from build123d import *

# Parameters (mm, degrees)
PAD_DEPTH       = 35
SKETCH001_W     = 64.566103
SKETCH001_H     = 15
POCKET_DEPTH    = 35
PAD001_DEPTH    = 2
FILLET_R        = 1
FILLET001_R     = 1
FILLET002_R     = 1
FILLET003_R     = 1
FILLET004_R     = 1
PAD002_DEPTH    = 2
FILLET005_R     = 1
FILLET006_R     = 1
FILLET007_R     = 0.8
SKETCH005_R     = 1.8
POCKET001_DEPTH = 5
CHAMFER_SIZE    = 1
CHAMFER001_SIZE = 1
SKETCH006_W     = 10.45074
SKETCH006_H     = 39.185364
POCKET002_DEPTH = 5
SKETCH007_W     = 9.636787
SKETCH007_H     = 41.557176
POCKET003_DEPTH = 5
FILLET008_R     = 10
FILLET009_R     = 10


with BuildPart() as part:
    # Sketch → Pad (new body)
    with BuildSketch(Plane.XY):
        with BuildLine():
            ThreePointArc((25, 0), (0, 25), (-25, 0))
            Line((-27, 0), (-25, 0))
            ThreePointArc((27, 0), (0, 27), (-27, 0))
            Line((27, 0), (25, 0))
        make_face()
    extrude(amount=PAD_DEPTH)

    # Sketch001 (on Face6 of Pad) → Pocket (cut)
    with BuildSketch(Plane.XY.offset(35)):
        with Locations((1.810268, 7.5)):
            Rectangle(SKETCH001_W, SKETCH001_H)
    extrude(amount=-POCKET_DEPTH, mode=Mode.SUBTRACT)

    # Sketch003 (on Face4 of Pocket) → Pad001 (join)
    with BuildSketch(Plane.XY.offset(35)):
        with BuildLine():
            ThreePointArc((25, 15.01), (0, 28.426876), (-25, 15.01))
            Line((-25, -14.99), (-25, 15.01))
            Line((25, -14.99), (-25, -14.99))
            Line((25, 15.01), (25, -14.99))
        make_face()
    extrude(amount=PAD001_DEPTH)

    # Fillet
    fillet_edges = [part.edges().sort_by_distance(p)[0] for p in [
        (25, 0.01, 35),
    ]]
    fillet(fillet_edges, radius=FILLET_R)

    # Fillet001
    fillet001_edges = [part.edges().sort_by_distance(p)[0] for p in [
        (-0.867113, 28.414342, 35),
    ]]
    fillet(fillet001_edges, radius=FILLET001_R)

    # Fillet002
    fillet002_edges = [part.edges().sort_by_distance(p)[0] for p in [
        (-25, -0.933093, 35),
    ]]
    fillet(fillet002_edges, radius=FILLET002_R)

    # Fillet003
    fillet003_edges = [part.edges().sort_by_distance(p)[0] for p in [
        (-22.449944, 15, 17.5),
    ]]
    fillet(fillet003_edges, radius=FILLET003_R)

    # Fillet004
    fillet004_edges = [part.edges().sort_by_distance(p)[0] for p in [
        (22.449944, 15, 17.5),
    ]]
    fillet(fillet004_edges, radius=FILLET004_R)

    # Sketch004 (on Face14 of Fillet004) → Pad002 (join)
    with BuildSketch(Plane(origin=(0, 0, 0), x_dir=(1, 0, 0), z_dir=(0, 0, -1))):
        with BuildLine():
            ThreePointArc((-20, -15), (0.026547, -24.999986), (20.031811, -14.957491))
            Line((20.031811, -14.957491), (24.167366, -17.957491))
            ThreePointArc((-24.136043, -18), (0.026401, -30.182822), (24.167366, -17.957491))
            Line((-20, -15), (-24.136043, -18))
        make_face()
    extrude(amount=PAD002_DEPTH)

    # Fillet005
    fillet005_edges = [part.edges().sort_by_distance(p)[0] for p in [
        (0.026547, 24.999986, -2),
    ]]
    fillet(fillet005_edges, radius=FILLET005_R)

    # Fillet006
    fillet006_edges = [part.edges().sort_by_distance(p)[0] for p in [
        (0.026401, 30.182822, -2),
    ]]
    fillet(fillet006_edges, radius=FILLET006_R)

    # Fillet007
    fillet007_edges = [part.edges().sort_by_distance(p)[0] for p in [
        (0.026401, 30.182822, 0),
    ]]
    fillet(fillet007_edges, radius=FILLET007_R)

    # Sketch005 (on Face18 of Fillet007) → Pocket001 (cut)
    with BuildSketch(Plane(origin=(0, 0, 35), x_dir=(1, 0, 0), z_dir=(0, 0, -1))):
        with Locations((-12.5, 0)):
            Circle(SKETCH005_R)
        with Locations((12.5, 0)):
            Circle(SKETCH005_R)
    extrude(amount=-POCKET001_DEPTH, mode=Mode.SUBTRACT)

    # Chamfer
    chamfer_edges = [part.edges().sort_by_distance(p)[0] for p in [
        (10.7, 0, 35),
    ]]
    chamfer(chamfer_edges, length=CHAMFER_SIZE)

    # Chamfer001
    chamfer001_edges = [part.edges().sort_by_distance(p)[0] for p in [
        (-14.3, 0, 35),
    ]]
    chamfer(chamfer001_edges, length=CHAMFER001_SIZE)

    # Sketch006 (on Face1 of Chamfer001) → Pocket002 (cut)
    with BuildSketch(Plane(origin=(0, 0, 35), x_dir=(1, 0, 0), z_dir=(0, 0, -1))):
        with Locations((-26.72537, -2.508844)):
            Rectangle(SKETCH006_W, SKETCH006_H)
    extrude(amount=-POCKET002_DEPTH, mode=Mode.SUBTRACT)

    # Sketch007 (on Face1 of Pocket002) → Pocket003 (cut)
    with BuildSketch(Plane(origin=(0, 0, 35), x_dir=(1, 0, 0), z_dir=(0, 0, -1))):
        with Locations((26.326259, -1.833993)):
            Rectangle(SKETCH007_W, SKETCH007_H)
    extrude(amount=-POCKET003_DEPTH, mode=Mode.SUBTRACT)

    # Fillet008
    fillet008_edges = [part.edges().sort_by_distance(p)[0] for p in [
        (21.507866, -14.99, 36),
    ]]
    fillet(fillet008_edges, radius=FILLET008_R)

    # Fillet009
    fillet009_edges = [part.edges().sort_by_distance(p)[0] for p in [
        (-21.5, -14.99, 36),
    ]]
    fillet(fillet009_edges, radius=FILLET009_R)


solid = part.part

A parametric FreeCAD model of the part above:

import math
import FreeCAD as App
import Part
import Sketcher
from FreeCAD import Vector
Q = App.Units.Quantity


def edges_at(feature, points):
    """Names of the edges that pass closest to the given points."""
    edges = feature.Shape.Edges
    near = lambda p: min(range(len(edges)), key=lambda i: edges[i].distToShape(Part.Vertex(*p))[0])
    return sorted({f"Edge{near(p) + 1}" for p in points})

doc = App.newDocument("Part")
body = doc.addObject("PartDesign::Body", "Body")

# Sketch on XY plane
sketch1 = body.newObject("Sketcher::SketchObject", "Sketch")
sketch1.AttachmentSupport = (doc.getObject("XY_Plane"), [""])
sketch1.MapMode = "FlatFace"
sketch1.addGeometry(Part.ArcOfCircle(Part.Circle(Vector(0, 0, 0), Vector(0, 0, 1), 25), math.radians(0), math.radians(180)), False)
sketch1.addGeometry(Part.LineSegment(Vector(25, 0, 0), Vector(27, 0, 0)), False)
sketch1.addGeometry(Part.ArcOfCircle(Part.Circle(Vector(0, 0, 0), Vector(0, 0, 1), 27), math.radians(0), math.radians(180)), False)
sketch1.addGeometry(Part.LineSegment(Vector(-27, 0, 0), Vector(-25, 0, 0)), False)
sketch1.addConstraint(Sketcher.Constraint("Coincident", 0, 1, 1, 1))
sketch1.addConstraint(Sketcher.Constraint("Coincident", 1, 2, 2, 1))
sketch1.addConstraint(Sketcher.Constraint("Coincident", 2, 2, 3, 1))
sketch1.addConstraint(Sketcher.Constraint("Coincident", 3, 2, 0, 2))
sketch1.addConstraint(Sketcher.Constraint("Horizontal", 1))
sketch1.addConstraint(Sketcher.Constraint("Horizontal", 3))
sketch1.addConstraint(Sketcher.Constraint("Coincident", 0, 3, -1, 1))
sketch1.addConstraint(Sketcher.Constraint("Coincident", 2, 3, -1, 1))
sketch1.addConstraint(Sketcher.Constraint("PointOnObject", 0, 1, -1))
sketch1.addConstraint(Sketcher.Constraint("PointOnObject", 2, 2, -1))
sketch1.addConstraint(Sketcher.Constraint("Radius", 0, Q("25 mm")))
sketch1.addConstraint(Sketcher.Constraint("Radius", 2, Q("27 mm")))
pad1 = body.newObject("PartDesign::Pad", "Pad")
pad1.Profile = sketch1
pad1.Length = 35

# Sketch on XY plane
sketch2 = body.newObject("Sketcher::SketchObject", "Sketch001")
sketch2.AttachmentSupport = (doc.getObject("XY_Plane"), [""])
sketch2.MapMode = "FlatFace"
sketch2.AttachmentOffset = App.Placement(Vector(0, 0, 35), App.Rotation())
sketch2.addGeometry(Part.LineSegment(Vector(-30, 15, 0), Vector(-30, 0, 0)), False)
sketch2.addGeometry(Part.LineSegment(Vector(-30, 0, 0), Vector(34, 0, 0)), False)
sketch2.addGeometry(Part.LineSegment(Vector(34, 0, 0), Vector(34, 15, 0)), False)
sketch2.addGeometry(Part.LineSegment(Vector(34, 15, 0), Vector(-30, 15, 0)), False)
sketch2.addConstraint(Sketcher.Constraint("Coincident", 0, 2, 1, 1))
sketch2.addConstraint(Sketcher.Constraint("Coincident", 1, 2, 2, 1))
sketch2.addConstraint(Sketcher.Constraint("Coincident", 2, 2, 3, 1))
sketch2.addConstraint(Sketcher.Constraint("Coincident", 3, 2, 0, 1))
sketch2.addConstraint(Sketcher.Constraint("Vertical", 0))
sketch2.addConstraint(Sketcher.Constraint("Horizontal", 1))
sketch2.addConstraint(Sketcher.Constraint("Vertical", 2))
sketch2.addConstraint(Sketcher.Constraint("Horizontal", 3))
sketch2.addConstraint(Sketcher.Constraint("PointOnObject", 0, 2, -1))
sketch2.addConstraint(Sketcher.Constraint("DistanceY", 0, 2, 0, 1, Q("15 mm")))
sketch2.addConstraint(Sketcher.Constraint("DistanceX", 1, 1, 1, 2, Q("64.566103 mm")))
sketch2.addConstraint(Sketcher.Constraint("DistanceX", -1, 1, 1, 2, Q("34.093319 mm")))
pocket1 = body.newObject("PartDesign::Pocket", "Pocket")
pocket1.Profile = sketch2
pocket1.Length = 35

# Sketch on XY plane
sketch3 = body.newObject("Sketcher::SketchObject", "Sketch002")
sketch3.AttachmentSupport = (doc.getObject("XY_Plane"), [""])
sketch3.MapMode = "FlatFace"
sketch3.AttachmentOffset = App.Placement(Vector(0, 0, 35), App.Rotation())
sketch3.addGeometry(Part.ArcOfCircle(Part.Circle(Vector(0, -2, 0), Vector(0, 0, 1), 30), math.radians(34), math.radians(146)), False)
sketch3.addGeometry(Part.LineSegment(Vector(-25, 15, 0), Vector(-25, -15, 0)), False)
sketch3.addGeometry(Part.LineSegment(Vector(-25, -15, 0), Vector(25, -15, 0)), False)
sketch3.addGeometry(Part.LineSegment(Vector(25, -15, 0), Vector(25, 15, 0)), False)
sketch3.addConstraint(Sketcher.Constraint("Coincident", 0, 2, 1, 1))
sketch3.addConstraint(Sketcher.Constraint("Coincident", 1, 2, 2, 1))
sketch3.addConstraint(Sketcher.Constraint("Coincident", 2, 2, 3, 1))
sketch3.addConstraint(Sketcher.Constraint("Coincident", 3, 2, 0, 1))
sketch3.addConstraint(Sketcher.Constraint("Vertical", 1))
sketch3.addConstraint(Sketcher.Constraint("Horizontal", 2))
sketch3.addConstraint(Sketcher.Constraint("Vertical", 3))
sketch3.addConstraint(Sketcher.Constraint("Symmetric", 0, 2, 3, 2, -2))
sketch3.addConstraint(Sketcher.Constraint("Radius", 0, Q("30 mm")))
sketch3.addConstraint(Sketcher.Constraint("DistanceX", 2, 1, 2, 2, Q("50 mm")))
sketch3.addConstraint(Sketcher.Constraint("DistanceY", 1, 2, 1, 1, Q("30 mm")))
sketch3.addConstraint(Sketcher.Constraint("DistanceY", -1, 1, 0, 2, Q("15.01 mm")))
pad2 = body.newObject("PartDesign::Pad", "Pad001")
pad2.Profile = sketch3
pad2.Length = 2
doc.recompute()

fillet = body.newObject("PartDesign::Fillet", "Fillet")
fillet.Base = (pad2, edges_at(pad2, [(25, 0.01, 35)]))
fillet.Radius = 1
doc.recompute()

fillet2 = body.newObject("PartDesign::Fillet", "Fillet001")
fillet2.Base = (fillet, edges_at(fillet, [(-0.867, 28.414, 35)]))
fillet2.Radius = 1
doc.recompute()

fillet3 = body.newObject("PartDesign::Fillet", "Fillet002")
fillet3.Base = (fillet2, edges_at(fillet2, [(-25, -0.933, 35)]))
fillet3.Radius = 1
doc.recompute()

fillet4 = body.newObject("PartDesign::Fillet", "Fillet003")
fillet4.Base = (fillet3, edges_at(fillet3, [(-22.45, 15, 17.5)]))
fillet4.Radius = 1
doc.recompute()

fillet5 = body.newObject("PartDesign::Fillet", "Fillet004")
fillet5.Base = (fillet4, edges_at(fillet4, [(22.45, 15, 17.5)]))
fillet5.Radius = 1

# Sketch on XY plane
sketch4 = body.newObject("Sketcher::SketchObject", "Sketch003")
sketch4.AttachmentSupport = (doc.getObject("XY_Plane"), [""])
sketch4.MapMode = "FlatFace"
sketch4.addGeometry(Part.ArcOfCircle(Part.Circle(Vector(0, 0, 0), Vector(0, 0, 1), 25), math.radians(37), math.radians(143)), False)
sketch4.addGeometry(Part.LineSegment(Vector(-20, 15, 0), Vector(-24, 18, 0)), False)
sketch4.addGeometry(Part.ArcOfCircle(Part.Circle(Vector(0, 0, 0), Vector(0, 0, 1), 30), math.radians(36), math.radians(144)), False)
sketch4.addGeometry(Part.LineSegment(Vector(24, 18, 0), Vector(20, 15, 0)), False)
sketch4.addConstraint(Sketcher.Constraint("Coincident", 0, 2, 1, 1))
sketch4.addConstraint(Sketcher.Constraint("Coincident", 1, 2, 2, 2))
sketch4.addConstraint(Sketcher.Constraint("Coincident", 2, 1, 3, 1))
sketch4.addConstraint(Sketcher.Constraint("Coincident", 3, 2, 0, 1))
sketch4.addConstraint(Sketcher.Constraint("Coincident", 0, 3, -1, 1))
sketch4.addConstraint(Sketcher.Constraint("PointOnObject", 2, 3, -2))
sketch4.addConstraint(Sketcher.Constraint("Radius", 0, Q("25 mm")))
sketch4.addConstraint(Sketcher.Constraint("Radius", 2, Q("30 mm")))
sketch4.addConstraint(Sketcher.Constraint("DistanceX", 0, 2, -1, 1, Q("20 mm")))
sketch4.addConstraint(Sketcher.Constraint("DistanceY", -1, 1, 1, 2, Q("18 mm")))
sketch4.addConstraint(Sketcher.Constraint("DistanceY", 3, 2, 2, 1, Q("3 mm")))
sketch4.addConstraint(Sketcher.Constraint("Distance", 3, Q("5.109091 mm")))
sketch4.addConstraint(Sketcher.Constraint("DistanceY", -1, 1, 2, 1, Q("17.957491 mm")))
pad3 = body.newObject("PartDesign::Pad", "Pad002")
pad3.Profile = sketch4
pad3.Length = 2
pad3.Reversed = True
doc.recompute()

fillet6 = body.newObject("PartDesign::Fillet", "Fillet005")
fillet6.Base = (pad3, edges_at(pad3, [(0.027, 25, -2)]))
fillet6.Radius = 1
doc.recompute()

fillet7 = body.newObject("PartDesign::Fillet", "Fillet006")
fillet7.Base = (fillet6, edges_at(fillet6, [(0.026, 30.183, -2)]))
fillet7.Radius = 1
doc.recompute()

fillet8 = body.newObject("PartDesign::Fillet", "Fillet007")
fillet8.Base = (fillet7, edges_at(fillet7, [(0.026, 30.183, 0)]))
fillet8.Radius = 0.8

# Sketch on XY plane
sketch5 = body.newObject("Sketcher::SketchObject", "Sketch004")
sketch5.AttachmentSupport = (doc.getObject("XY_Plane"), [""])
sketch5.MapMode = "FlatFace"
sketch5.AttachmentOffset = App.Placement(Vector(0, 0, 35), App.Rotation())
sketch5.addGeometry(Part.Circle(Vector(-12.5, 0, 0), Vector(0, 0, 1), 1.8), False)
sketch5.addGeometry(Part.Circle(Vector(12.5, 0, 0), Vector(0, 0, 1), 1.8), False)
sketch5.addConstraint(Sketcher.Constraint("Equal", 0, 1))
sketch5.addConstraint(Sketcher.Constraint("Symmetric", 0, 3, 1, 3, -1, 1))
sketch5.addConstraint(Sketcher.Constraint("PointOnObject", 0, 3, -1))
sketch5.addConstraint(Sketcher.Constraint("Diameter", 0, Q("3.6 mm")))
sketch5.addConstraint(Sketcher.Constraint("DistanceX", 0, 3, 1, 3, Q("25 mm")))
pocket2 = body.newObject("PartDesign::Pocket", "Pocket001")
pocket2.Profile = sketch5
pocket2.Length = 5
pocket2.Reversed = True
doc.recompute()

chamfer = body.newObject("PartDesign::Chamfer", "Chamfer")
chamfer.Base = (pocket2, edges_at(pocket2, [(10.7, 0, 35)]))
chamfer.Size = 1
doc.recompute()

chamfer2 = body.newObject("PartDesign::Chamfer", "Chamfer001")
chamfer2.Base = (chamfer, edges_at(chamfer, [(-14.3, 0, 35)]))
chamfer2.Size = 1

# Sketch on XY plane
sketch6 = body.newObject("Sketcher::SketchObject", "Sketch005")
sketch6.AttachmentSupport = (doc.getObject("XY_Plane"), [""])
sketch6.MapMode = "FlatFace"
sketch6.AttachmentOffset = App.Placement(Vector(0, 0, 35), App.Rotation())
sketch6.addGeometry(Part.LineSegment(Vector(-32, -17, 0), Vector(-32, 22, 0)), False)
sketch6.addGeometry(Part.LineSegment(Vector(-32, 22, 0), Vector(-22, 22, 0)), False)
sketch6.addGeometry(Part.LineSegment(Vector(-22, 22, 0), Vector(-22, -17, 0)), False)
sketch6.addGeometry(Part.LineSegment(Vector(-22, -17, 0), Vector(-32, -17, 0)), False)
sketch6.addConstraint(Sketcher.Constraint("Coincident", 0, 2, 1, 1))
sketch6.addConstraint(Sketcher.Constraint("Coincident", 1, 2, 2, 1))
sketch6.addConstraint(Sketcher.Constraint("Coincident", 2, 2, 3, 1))
sketch6.addConstraint(Sketcher.Constraint("Coincident", 3, 2, 0, 1))
sketch6.addConstraint(Sketcher.Constraint("Vertical", 0))
sketch6.addConstraint(Sketcher.Constraint("Horizontal", 1))
sketch6.addConstraint(Sketcher.Constraint("Vertical", 2))
sketch6.addConstraint(Sketcher.Constraint("Horizontal", 3))
sketch6.addConstraint(Sketcher.Constraint("DistanceX", 1, 2, -1, 1, Q("21.5 mm")))
sketch6.addConstraint(Sketcher.Constraint("DistanceX", 1, 1, 1, 2, Q("10.45074 mm")))
sketch6.addConstraint(Sketcher.Constraint("DistanceY", 0, 1, 0, 2, Q("39.185364 mm")))
sketch6.addConstraint(Sketcher.Constraint("DistanceY", 2, 2, -1, 1, Q("17.083838 mm")))
pocket3 = body.newObject("PartDesign::Pocket", "Pocket002")
pocket3.Profile = sketch6
pocket3.Length = 5
pocket3.Reversed = True

# Sketch on XY plane
sketch7 = body.newObject("Sketcher::SketchObject", "Sketch006")
sketch7.AttachmentSupport = (doc.getObject("XY_Plane"), [""])
sketch7.MapMode = "FlatFace"
sketch7.AttachmentOffset = App.Placement(Vector(0, 0, 35), App.Rotation())
sketch7.addGeometry(Part.LineSegment(Vector(22, -19, 0), Vector(22, 23, 0)), False)
sketch7.addGeometry(Part.LineSegment(Vector(22, 23, 0), Vector(31, 23, 0)), False)
sketch7.addGeometry(Part.LineSegment(Vector(31, 23, 0), Vector(31, -19, 0)), False)
sketch7.addGeometry(Part.LineSegment(Vector(31, -19, 0), Vector(22, -19, 0)), False)
sketch7.addConstraint(Sketcher.Constraint("Coincident", 0, 2, 1, 1))
sketch7.addConstraint(Sketcher.Constraint("Coincident", 1, 2, 2, 1))
sketch7.addConstraint(Sketcher.Constraint("Coincident", 2, 2, 3, 1))
sketch7.addConstraint(Sketcher.Constraint("Coincident", 3, 2, 0, 1))
sketch7.addConstraint(Sketcher.Constraint("Vertical", 0))
sketch7.addConstraint(Sketcher.Constraint("Horizontal", 1))
sketch7.addConstraint(Sketcher.Constraint("Vertical", 2))
sketch7.addConstraint(Sketcher.Constraint("Horizontal", 3))
sketch7.addConstraint(Sketcher.Constraint("DistanceX", 1, 1, 1, 2, Q("9.636787 mm")))
sketch7.addConstraint(Sketcher.Constraint("DistanceY", 0, 1, 0, 2, Q("41.557176 mm")))
sketch7.addConstraint(Sketcher.Constraint("DistanceY", -1, 1, 0, 2, Q("22.612581 mm")))
sketch7.addConstraint(Sketcher.Constraint("DistanceX", -1, 1, 0, 2, Q("21.507866 mm")))
pocket4 = body.newObject("PartDesign::Pocket", "Pocket003")
pocket4.Profile = sketch7
pocket4.Length = 5
pocket4.Reversed = True
doc.recompute()

fillet9 = body.newObject("PartDesign::Fillet", "Fillet008")
fillet9.Base = (pocket4, edges_at(pocket4, [(21.508, -14.99, 36)]))
fillet9.Radius = 10
doc.recompute()

fillet10 = body.newObject("PartDesign::Fillet", "Fillet009")
fillet10.Base = (fillet9, edges_at(fillet9, [(-21.5, -14.99, 36)]))
fillet10.Radius = 10

doc.recompute()
